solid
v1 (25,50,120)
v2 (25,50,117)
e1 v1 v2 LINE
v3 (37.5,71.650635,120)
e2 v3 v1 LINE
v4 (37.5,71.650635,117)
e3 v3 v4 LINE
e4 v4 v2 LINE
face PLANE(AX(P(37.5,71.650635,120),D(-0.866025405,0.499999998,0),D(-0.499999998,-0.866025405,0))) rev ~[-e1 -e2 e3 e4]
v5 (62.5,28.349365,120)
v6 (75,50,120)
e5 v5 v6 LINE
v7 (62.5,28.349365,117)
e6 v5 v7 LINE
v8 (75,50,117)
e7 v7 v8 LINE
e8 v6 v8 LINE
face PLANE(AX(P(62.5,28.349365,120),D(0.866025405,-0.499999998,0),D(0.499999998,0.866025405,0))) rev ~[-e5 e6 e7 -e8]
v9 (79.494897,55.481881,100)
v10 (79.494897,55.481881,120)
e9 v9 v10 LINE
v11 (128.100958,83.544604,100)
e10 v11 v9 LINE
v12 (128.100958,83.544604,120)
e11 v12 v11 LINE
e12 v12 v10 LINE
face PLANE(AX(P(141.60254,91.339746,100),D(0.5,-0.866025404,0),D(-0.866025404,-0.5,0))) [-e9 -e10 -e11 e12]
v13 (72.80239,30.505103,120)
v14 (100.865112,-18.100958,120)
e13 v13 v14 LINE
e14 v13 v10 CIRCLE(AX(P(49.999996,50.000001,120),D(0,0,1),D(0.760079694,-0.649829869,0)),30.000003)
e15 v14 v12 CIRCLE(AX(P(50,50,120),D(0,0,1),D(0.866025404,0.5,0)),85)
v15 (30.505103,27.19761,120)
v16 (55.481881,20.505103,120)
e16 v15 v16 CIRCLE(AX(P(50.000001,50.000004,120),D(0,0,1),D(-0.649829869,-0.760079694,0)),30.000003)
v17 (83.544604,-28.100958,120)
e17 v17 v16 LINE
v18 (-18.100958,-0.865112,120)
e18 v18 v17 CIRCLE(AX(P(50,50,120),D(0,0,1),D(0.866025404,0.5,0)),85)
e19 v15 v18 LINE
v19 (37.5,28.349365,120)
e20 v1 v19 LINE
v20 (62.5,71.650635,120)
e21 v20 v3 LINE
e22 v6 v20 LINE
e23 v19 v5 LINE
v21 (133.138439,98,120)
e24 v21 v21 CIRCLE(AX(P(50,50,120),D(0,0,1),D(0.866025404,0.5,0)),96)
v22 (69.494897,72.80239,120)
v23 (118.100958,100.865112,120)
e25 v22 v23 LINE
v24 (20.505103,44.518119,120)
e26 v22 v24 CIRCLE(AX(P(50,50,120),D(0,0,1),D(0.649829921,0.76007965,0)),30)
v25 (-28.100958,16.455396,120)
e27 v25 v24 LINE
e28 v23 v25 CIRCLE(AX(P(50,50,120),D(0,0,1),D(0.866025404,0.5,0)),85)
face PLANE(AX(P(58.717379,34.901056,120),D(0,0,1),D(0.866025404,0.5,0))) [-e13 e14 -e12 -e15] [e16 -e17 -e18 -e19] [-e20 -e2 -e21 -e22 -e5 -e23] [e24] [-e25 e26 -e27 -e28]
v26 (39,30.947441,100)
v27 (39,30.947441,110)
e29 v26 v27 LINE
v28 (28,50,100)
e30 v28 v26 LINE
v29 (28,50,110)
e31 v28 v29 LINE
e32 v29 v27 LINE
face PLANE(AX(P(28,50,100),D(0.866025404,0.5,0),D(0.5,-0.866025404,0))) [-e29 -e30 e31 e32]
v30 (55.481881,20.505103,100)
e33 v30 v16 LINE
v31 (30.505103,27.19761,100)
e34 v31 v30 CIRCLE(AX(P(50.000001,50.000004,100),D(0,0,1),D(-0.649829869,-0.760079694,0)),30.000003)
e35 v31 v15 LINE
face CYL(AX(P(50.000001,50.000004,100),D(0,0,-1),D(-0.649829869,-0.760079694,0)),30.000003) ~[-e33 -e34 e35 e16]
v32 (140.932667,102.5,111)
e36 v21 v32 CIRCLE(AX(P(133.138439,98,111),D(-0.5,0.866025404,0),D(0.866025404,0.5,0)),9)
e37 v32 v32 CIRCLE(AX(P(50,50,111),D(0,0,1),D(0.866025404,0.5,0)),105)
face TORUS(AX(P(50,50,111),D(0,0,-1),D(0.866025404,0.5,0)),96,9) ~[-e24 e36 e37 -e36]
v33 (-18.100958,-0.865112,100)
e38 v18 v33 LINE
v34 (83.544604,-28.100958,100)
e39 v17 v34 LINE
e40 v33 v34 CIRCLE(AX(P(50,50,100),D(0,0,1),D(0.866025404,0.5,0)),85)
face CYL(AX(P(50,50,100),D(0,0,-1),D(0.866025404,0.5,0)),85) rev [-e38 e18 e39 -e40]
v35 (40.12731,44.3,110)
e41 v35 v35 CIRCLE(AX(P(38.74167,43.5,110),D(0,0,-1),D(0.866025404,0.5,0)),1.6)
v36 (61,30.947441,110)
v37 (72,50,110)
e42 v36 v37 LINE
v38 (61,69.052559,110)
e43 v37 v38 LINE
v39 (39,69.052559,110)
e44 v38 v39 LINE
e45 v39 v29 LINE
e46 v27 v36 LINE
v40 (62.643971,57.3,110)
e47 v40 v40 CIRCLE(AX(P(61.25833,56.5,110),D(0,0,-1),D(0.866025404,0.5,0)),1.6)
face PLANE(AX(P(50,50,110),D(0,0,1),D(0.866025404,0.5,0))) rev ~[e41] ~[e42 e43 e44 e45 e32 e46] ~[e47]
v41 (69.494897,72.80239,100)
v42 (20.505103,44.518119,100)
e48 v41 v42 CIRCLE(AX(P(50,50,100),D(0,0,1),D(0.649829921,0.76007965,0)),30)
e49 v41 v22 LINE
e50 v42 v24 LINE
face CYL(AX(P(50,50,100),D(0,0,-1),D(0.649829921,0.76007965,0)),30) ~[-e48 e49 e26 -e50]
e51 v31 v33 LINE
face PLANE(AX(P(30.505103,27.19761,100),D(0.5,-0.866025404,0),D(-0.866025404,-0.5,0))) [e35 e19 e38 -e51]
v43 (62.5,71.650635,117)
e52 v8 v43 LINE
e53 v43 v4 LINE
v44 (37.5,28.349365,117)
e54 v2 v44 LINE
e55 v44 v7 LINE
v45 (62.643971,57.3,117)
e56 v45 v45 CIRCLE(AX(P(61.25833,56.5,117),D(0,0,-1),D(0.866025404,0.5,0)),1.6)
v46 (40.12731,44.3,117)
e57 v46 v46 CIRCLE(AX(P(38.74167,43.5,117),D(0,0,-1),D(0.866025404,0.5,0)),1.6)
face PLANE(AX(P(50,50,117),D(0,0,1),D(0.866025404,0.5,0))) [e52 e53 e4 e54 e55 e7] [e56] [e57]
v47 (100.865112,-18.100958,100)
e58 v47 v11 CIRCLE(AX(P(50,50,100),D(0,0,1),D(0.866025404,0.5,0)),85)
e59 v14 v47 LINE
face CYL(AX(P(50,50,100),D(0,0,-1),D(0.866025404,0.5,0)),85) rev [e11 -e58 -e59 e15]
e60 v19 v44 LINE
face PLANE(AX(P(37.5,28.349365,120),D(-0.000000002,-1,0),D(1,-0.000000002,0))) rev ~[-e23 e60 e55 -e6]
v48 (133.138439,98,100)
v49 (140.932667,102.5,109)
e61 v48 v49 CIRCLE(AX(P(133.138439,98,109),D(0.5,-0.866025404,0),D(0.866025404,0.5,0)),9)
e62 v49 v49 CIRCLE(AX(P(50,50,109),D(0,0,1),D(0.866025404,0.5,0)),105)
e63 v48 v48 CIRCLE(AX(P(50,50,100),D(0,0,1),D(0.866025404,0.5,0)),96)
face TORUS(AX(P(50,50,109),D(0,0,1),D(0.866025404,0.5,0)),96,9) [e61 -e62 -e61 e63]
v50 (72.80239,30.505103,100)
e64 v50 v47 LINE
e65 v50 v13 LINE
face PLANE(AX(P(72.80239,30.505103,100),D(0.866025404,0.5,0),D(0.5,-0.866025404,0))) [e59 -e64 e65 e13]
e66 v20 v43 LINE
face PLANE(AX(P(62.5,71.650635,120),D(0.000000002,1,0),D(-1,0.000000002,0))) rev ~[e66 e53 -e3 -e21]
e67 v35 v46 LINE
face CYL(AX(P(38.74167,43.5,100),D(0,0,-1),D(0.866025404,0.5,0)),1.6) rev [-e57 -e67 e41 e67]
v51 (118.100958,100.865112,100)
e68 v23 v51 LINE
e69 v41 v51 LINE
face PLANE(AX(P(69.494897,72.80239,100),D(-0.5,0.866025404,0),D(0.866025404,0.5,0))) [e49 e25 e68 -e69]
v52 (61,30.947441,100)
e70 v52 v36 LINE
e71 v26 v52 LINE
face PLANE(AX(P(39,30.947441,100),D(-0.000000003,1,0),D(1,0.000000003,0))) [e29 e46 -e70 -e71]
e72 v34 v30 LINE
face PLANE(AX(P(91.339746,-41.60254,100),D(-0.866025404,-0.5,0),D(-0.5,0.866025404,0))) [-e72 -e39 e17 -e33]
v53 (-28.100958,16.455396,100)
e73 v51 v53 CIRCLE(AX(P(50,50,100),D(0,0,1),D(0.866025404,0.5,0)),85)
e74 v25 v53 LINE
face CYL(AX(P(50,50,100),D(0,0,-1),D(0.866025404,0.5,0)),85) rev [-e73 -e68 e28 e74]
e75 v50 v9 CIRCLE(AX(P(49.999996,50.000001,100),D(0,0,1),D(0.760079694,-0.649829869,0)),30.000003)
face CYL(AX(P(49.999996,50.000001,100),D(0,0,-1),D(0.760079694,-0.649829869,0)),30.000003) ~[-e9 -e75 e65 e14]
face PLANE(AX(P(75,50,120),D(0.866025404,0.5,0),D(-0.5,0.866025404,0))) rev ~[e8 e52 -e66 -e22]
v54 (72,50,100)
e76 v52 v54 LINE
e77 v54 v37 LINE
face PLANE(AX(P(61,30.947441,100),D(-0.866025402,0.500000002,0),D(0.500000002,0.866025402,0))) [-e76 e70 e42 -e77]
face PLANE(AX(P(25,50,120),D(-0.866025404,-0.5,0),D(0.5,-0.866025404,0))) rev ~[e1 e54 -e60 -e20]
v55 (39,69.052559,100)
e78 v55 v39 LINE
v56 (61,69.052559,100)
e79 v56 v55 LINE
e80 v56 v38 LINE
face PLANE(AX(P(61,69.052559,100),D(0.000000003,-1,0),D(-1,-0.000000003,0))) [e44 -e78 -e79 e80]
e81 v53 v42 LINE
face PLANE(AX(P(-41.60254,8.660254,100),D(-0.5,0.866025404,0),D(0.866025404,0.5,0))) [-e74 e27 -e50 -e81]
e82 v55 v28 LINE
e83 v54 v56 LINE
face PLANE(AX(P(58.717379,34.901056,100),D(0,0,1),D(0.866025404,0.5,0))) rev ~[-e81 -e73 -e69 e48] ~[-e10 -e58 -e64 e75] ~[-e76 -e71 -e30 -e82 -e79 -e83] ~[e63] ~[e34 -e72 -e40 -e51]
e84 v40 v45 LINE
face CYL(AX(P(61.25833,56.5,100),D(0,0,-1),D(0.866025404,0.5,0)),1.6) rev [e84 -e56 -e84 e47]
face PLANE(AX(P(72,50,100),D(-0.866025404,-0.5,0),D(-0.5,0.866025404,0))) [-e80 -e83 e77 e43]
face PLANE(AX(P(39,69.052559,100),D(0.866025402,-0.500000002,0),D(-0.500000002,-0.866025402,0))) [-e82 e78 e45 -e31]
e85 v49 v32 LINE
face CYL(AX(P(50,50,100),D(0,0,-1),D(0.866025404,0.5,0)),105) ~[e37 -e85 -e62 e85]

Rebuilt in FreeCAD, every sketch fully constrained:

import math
import FreeCAD as App
import Part
import Sketcher
from FreeCAD import Vector
Q = App.Units.Quantity


def edges_at(feature, points):
    """Names of the edges that pass closest to the given points."""
    edges = feature.Shape.Edges
    near = lambda p: min(range(len(edges)), key=lambda i: edges[i].distToShape(Part.Vertex(*p))[0])
    return sorted({f"Edge{near(p) + 1}" for p in points})

doc = App.newDocument("Part")
params = doc.addObject("Spreadsheet::Sheet", "Params")
for row, (alias, value) in enumerate([
    ("sketch1_diameter", "210 mm"),
    ("sketch1_diameter2", "170 mm"),
    ("pad1_length", "20 mm"),
    ("sketch2_radius", "30 mm"),
    ("sketch2_width", "20 mm"),
    ("pad2_length", "20 mm"),
    ("sketch3_height", "22 mm"),
    ("sketch3_length", "22 mm"),
    ("pocket1_length", "10 mm"),
    ("sketch4_diameter", "3.2 mm"),
    ("pocket2_length", "20 mm"),
    ("sketch5_height", "25 mm"),
    ("sketch5_length", "25 mm"),
    ("pocket3_length", "3 mm"),
    ("fillet_radius", "9 mm"),
], start=1):
    params.set(f"A{row}", alias)
    params.set(f"B{row}", "=" + value)
    params.setAlias(f"B{row}", alias)

body = doc.addObject("PartDesign::Body", "Body")

# Sketch on XY plane
sketch1 = body.newObject("Sketcher::SketchObject", "Sketch")
sketch1.AttachmentSupport = (doc.getObject("XY_Plane"), [""])
sketch1.MapMode = "FlatFace"
sketch1.addGeometry(Part.Circle(Vector(0, 0, 0), Vector(0, 0, 1), 105), False)
sketch1.addGeometry(Part.Circle(Vector(0, 0, 0), Vector(0, 0, 1), 85), False)
sketch1.addConstraint(Sketcher.Constraint("Coincident", 0, 3, -1, 1))
sketch1.addConstraint(Sketcher.Constraint("Coincident", 1, 3, -1, 1))
sketch1.addConstraint(Sketcher.Constraint("Diameter", 0, 210.0))
sketch1.addConstraint(Sketcher.Constraint("Diameter", 1, 170.0))
sketch1.setExpression("Constraints[2]", "Params.sketch1_diameter")
sketch1.setExpression("Constraints[3]", "Params.sketch1_diameter2")
pad1 = body.newObject("PartDesign::Pad", "Pad")
pad1.Profile = sketch1
pad1.setExpression("Length", "Params.pad1_length")

# Sketch on XY plane
sketch2 = body.newObject("Sketcher::SketchObject", "Sketch001")
sketch2.AttachmentSupport = (doc.getObject("XY_Plane"), [""])
sketch2.MapMode = "FlatFace"
sketch2.addGeometry(Part.ArcOfCircle(Part.Circle(Vector(0.000003, 0.000003, 0), Vector(0, 0, 1), 30.000003), math.radians(-160.528776), math.radians(-109.471224)), False)
sketch2.addGeometry(Part.LineSegment(Vector(-10, -28.284271, 0), Vector(-10, -100, 0)), False)
sketch2.addGeometry(Part.LineSegment(Vector(-10, -100, 0), Vector(10, -100, 0)), False)
sketch2.addGeometry(Part.LineSegment(Vector(10, -100, 0), Vector(10, -28.284271, 0)), False)
sketch2.addGeometry(Part.ArcOfCircle(Part.Circle(Vector(-0.000003, 0.000003, 0), Vector(0, 0, 1), 30.000003), math.radians(-70.528776), math.radians(-19.471224)), False)
sketch2.addGeometry(Part.LineSegment(Vector(28.284271, -10, 0), Vector(100, -10, 0)), False)
sketch2.addGeometry(Part.LineSegment(Vector(100, -10, 0), Vector(100, 10, 0)), False)
sketch2.addGeometry(Part.LineSegment(Vector(100, 10, 0), Vector(28.284271, 10, 0)), False)
sketch2.addGeometry(Part.ArcOfCircle(Part.Circle(Vector(0, 0, 0), Vector(0, 0, 1), 30), math.radians(19.47122), math.radians(160.52878)), False)
sketch2.addGeometry(Part.LineSegment(Vector(-28.284271, 10, 0), Vector(-100, 10, 0)), False)
sketch2.addGeometry(Part.LineSegment(Vector(-100, 10, 0), Vector(-100, -10, 0)), False)
sketch2.addGeometry(Part.LineSegment(Vector(-100, -10, 0), Vector(-28.284271, -10, 0)), False)
sketch2.addConstraint(Sketcher.Constraint("Coincident", 0, 2, 1, 1))
sketch2.addConstraint(Sketcher.Constraint("Coincident", 1, 2, 2, 1))
sketch2.addConstraint(Sketcher.Constraint("Coincident", 2, 2, 3, 1))
sketch2.addConstraint(Sketcher.Constraint("Coincident", 3, 2, 4, 1))
sketch2.addConstraint(Sketcher.Constraint("Coincident", 4, 2, 5, 1))
sketch2.addConstraint(Sketcher.Constraint("Coincident", 5, 2, 6, 1))
sketch2.addConstraint(Sketcher.Constraint("Coincident", 6, 2, 7, 1))
sketch2.addConstraint(Sketcher.Constraint("Coincident", 7, 2, 8, 1))
sketch2.addConstraint(Sketcher.Constraint("Coincident", 8, 2, 9, 1))
sketch2.addConstraint(Sketcher.Constraint("Coincident", 9, 2, 10, 1))
sketch2.addConstraint(Sketcher.Constraint("Coincident", 10, 2, 11, 1))
sketch2.addConstraint(Sketcher.Constraint("Coincident", 11, 2, 0, 1))
sketch2.addConstraint(Sketcher.Constraint("Vertical", 1))
sketch2.addConstraint(Sketcher.Constraint("Horizontal", 2))
sketch2.addConstraint(Sketcher.Constraint("Vertical", 3))
sketch2.addConstraint(Sketcher.Constraint("Horizontal", 5))
sketch2.addConstraint(Sketcher.Constraint("Vertical", 6))
sketch2.addConstraint(Sketcher.Constraint("Horizontal", 7))
sketch2.addConstraint(Sketcher.Constraint("Horizontal", 9))
sketch2.addConstraint(Sketcher.Constraint("Vertical", 10))
sketch2.addConstraint(Sketcher.Constraint("Horizontal", 11))
sketch2.addConstraint(Sketcher.Constraint("Coincident", 0, 3, -1, 1))
sketch2.addConstraint(Sketcher.Constraint("Coincident", 4, 3, -1, 1))
sketch2.addConstraint(Sketcher.Constraint("Coincident", 8, 3, -1, 1))
sketch2.addConstraint(Sketcher.Constraint("Equal", 0, 4))
sketch2.addConstraint(Sketcher.Constraint("Symmetric", 4, 2, 8, 2, -1, 1))
sketch2.addConstraint(Sketcher.Constraint("Symmetric", 6, 2, 10, 2, -1, 1))
sketch2.addConstraint(Sketcher.Constraint("Horizontal", 0, 2, 3, 2))
sketch2.addConstraint(Sketcher.Constraint("Horizontal", 7, 2, 8, 2))
sketch2.addConstraint(Sketcher.Constraint("Equal", 11, 1))
sketch2.addConstraint(Sketcher.Constraint("Equal", 2, 6))
sketch2.addConstraint(Sketcher.Constraint("Radius", 8, 30.0))
sketch2.addConstraint(Sketcher.Constraint("DistanceX", 2, 1, 2, 2, 20.0))
sketch2.addConstraint(Sketcher.Constraint("DistanceY", 1, 2, -1, 1, 100.0))
sketch2.setExpression("Constraints[31]", "Params.sketch2_radius")
sketch2.setExpression("Constraints[32]", "Params.sketch2_width")
pad2 = body.newObject("PartDesign::Pad", "Pad001")
pad2.Profile = sketch2
pad2.setExpression("Length", "Params.pad2_length")

# Sketch on XY plane
sketch3 = body.newObject("Sketcher::SketchObject", "Sketch002")
sketch3.AttachmentSupport = (doc.getObject("XY_Plane"), [""])
sketch3.MapMode = "FlatFace"
sketch3.addGeometry(Part.LineSegment(Vector(19.052559, 11, 0), Vector(0, 22, 0)), False)
sketch3.addGeometry(Part.LineSegment(Vector(0, 22, 0), Vector(-19.052559, 11, 0)), False)
sketch3.addGeometry(Part.LineSegment(Vector(-19.052559, 11, 0), Vector(-19.052559, -11, 0)), False)
sketch3.addGeometry(Part.LineSegment(Vector(-19.052559, -11, 0), Vector(0, -22, 0)), False)
sketch3.addGeometry(Part.LineSegment(Vector(0, -22, 0), Vector(19.052559, -11, 0)), False)
sketch3.addGeometry(Part.LineSegment(Vector(19.052559, -11, 0), Vector(19.052559, 11, 0)), False)
sketch3.addConstraint(Sketcher.Constraint("Coincident", 0, 2, 1, 1))
sketch3.addConstraint(Sketcher.Constraint("Coincident", 1, 2, 2, 1))
sketch3.addConstraint(Sketcher.Constraint("Coincident", 2, 2, 3, 1))
sketch3.addConstraint(Sketcher.Constraint("Coincident", 3, 2, 4, 1))
sketch3.addConstraint(Sketcher.Constraint("Coincident", 4, 2, 5, 1))
sketch3.addConstraint(Sketcher.Constraint("Coincident", 5, 2, 0, 1))
sketch3.addConstraint(Sketcher.Constraint("Vertical", 2))
sketch3.addConstraint(Sketcher.Constraint("Vertical", 5))
sketch3.addConstraint(Sketcher.Constraint("Symmetric", 0, 2, 3, 2, -1, 1))
sketch3.addConstraint(Sketcher.Constraint("Symmetric", 1, 2, 4, 2, -1, 1))
sketch3.addConstraint(Sketcher.Constraint("PointOnObject", 0, 2, -2))
sketch3.addConstraint(Sketcher.Constraint("Parallel", 0, 3))
sketch3.addConstraint(Sketcher.Constraint("Horizontal", 2, 2, 4, 2))
sketch3.addConstraint(Sketcher.Constraint("DistanceY", 2, 2, 2, 1, 22.0))
sketch3.addConstraint(Sketcher.Constraint("Angle", 0, Q("150 deg")))
sketch3.addConstraint(Sketcher.Constraint("Distance", 0, 22.0))
sketch3.setExpression("Constraints[13]", "Params.sketch3_height")
sketch3.setExpression("Constraints[15]", "Params.sketch3_length")
pocket1 = body.newObject("PartDesign::Pocket", "Pocket")
pocket1.Profile = sketch3
pocket1.setExpression("Length", "Params.pocket1_length")
pocket1.Reversed = True

# Sketch on XY plane
sketch4 = body.newObject("Sketcher::SketchObject", "Sketch003")
sketch4.AttachmentSupport = (doc.getObject("XY_Plane"), [""])
sketch4.MapMode = "FlatFace"
sketch4.addGeometry(Part.Circle(Vector(-13, 0, 0), Vector(0, 0, 1), 1.6), False)
sketch4.addGeometry(Part.Circle(Vector(13, 0, 0), Vector(0, 0, 1), 1.6), False)
sketch4.addConstraint(Sketcher.Constraint("Equal", 0, 1))
sketch4.addConstraint(Sketcher.Constraint("Symmetric", 0, 3, 1, 3, -1, 1))
sketch4.addConstraint(Sketcher.Constraint("PointOnObject", 0, 3, -1))
sketch4.addConstraint(Sketcher.Constraint("Diameter", 0, 3.2))
sketch4.addConstraint(Sketcher.Constraint("DistanceX", 0, 3, -1, 1, 13.0))
sketch4.setExpression("Constraints[3]", "Params.sketch4_diameter")
pocket2 = body.newObject("PartDesign::Pocket", "Pocket001")
pocket2.Profile = sketch4
pocket2.setExpression("Length", "Params.pocket2_length")
pocket2.Reversed = True

# Sketch on XY plane
sketch5 = body.newObject("Sketcher::SketchObject", "Sketch004")
sketch5.AttachmentSupport = (doc.getObject("XY_Plane"), [""])
sketch5.MapMode = "FlatFace"
sketch5.AttachmentOffset = App.Placement(Vector(0, 0, 20), App.Rotation())
sketch5.addGeometry(Part.LineSegment(Vector(21.650635, 12.5, 0), Vector(0, 25, 0)), False)
sketch5.addGeometry(Part.LineSegment(Vector(0, 25, 0), Vector(-21.650635, 12.5, 0)), False)
sketch5.addGeometry(Part.LineSegment(Vector(-21.650635, 12.5, 0), Vector(-21.650635, -12.5, 0)), False)
sketch5.addGeometry(Part.LineSegment(Vector(-21.650635, -12.5, 0), Vector(0, -25, 0)), False)
sketch5.addGeometry(Part.LineSegment(Vector(0, -25, 0), Vector(21.650635, -12.5, 0)), False)
sketch5.addGeometry(Part.LineSegment(Vector(21.650635, -12.5, 0), Vector(21.650635, 12.5, 0)), False)
sketch5.addConstraint(Sketcher.Constraint("Coincident", 0, 2, 1, 1))
sketch5.addConstraint(Sketcher.Constraint("Coincident", 1, 2, 2, 1))
sketch5.addConstraint(Sketcher.Constraint("Coincident", 2, 2, 3, 1))
sketch5.addConstraint(Sketcher.Constraint("Coincident", 3, 2, 4, 1))
sketch5.addConstraint(Sketcher.Constraint("Coincident", 4, 2, 5, 1))
sketch5.addConstraint(Sketcher.Constraint("Coincident", 5, 2, 0, 1))
sketch5.addConstraint(Sketcher.Constraint("Vertical", 2))
sketch5.addConstraint(Sketcher.Constraint("Vertical", 5))
sketch5.addConstraint(Sketcher.Constraint("Symmetric", 0, 2, 3, 2, -1, 1))
sketch5.addConstraint(Sketcher.Constraint("Symmetric", 1, 2, 4, 2, -1, 1))
sketch5.addConstraint(Sketcher.Constraint("PointOnObject", 0, 2, -2))
sketch5.addConstraint(Sketcher.Constraint("Parallel", 0, 3))
sketch5.addConstraint(Sketcher.Constraint("Horizontal", 2, 2, 4, 2))
sketch5.addConstraint(Sketcher.Constraint("DistanceY", 2, 2, 2, 1, 25.0))
sketch5.addConstraint(Sketcher.Constraint("Angle", 0, Q("150 deg")))
sketch5.addConstraint(Sketcher.Constraint("Distance", 0, 25.0))
sketch5.setExpression("Constraints[13]", "Params.sketch5_height")
sketch5.setExpression("Constraints[15]", "Params.sketch5_length")
pocket3 = body.newObject("PartDesign::Pocket", "Pocket002")
pocket3.Profile = sketch5
pocket3.setExpression("Length", "Params.pocket3_length")
doc.recompute()

fillet = body.newObject("PartDesign::Fillet", "Fillet")
fillet.Base = (pocket3, edges_at(pocket3, [(-105, 0, 20), (-105, 0, 0)]))
fillet.setExpression("Radius", "Params.fillet_radius")
body2 = doc.addObject("PartDesign::Body", "Body001")
doc.recompute()

body.Placement = App.Placement(Vector(50, 50, 100), App.Rotation(Vector(0, 0, 1), 30))
boolean = body2.newObject("PartDesign::Boolean", "Boolean")
boolean.Type = "Fuse"
boolean.addObjects([body])

doc.recompute()
